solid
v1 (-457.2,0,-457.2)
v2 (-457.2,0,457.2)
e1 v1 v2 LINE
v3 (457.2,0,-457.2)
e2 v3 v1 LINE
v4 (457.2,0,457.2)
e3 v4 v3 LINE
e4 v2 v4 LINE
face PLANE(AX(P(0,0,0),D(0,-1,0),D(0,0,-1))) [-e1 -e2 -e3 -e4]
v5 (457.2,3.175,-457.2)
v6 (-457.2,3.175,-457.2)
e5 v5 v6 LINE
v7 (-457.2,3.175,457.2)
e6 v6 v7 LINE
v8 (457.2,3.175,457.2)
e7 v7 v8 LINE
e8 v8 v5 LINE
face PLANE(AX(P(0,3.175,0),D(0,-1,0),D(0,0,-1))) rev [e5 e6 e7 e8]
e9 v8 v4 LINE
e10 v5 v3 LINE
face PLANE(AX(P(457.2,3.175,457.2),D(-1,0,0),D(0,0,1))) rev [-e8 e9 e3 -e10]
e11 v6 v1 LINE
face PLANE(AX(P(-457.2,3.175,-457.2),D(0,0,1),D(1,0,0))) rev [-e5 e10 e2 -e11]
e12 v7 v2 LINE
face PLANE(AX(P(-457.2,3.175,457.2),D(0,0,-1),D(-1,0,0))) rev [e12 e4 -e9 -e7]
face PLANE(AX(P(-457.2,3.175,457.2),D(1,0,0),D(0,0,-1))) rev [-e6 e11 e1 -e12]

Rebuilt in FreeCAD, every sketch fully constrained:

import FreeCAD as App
import Part
import Sketcher
Q = App.Units.Quantity

doc = App.newDocument("Part")
body = doc.addObject("PartDesign::Body", "Body")

# Sketch on XZ plane
sketch1 = body.newObject("Sketcher::SketchObject", "Sketch")
sketch1.AttachmentSupport = (doc.getObject("XZ_Plane"), [""])
sketch1.MapMode = "FlatFace"
sketch1.addGeometry([
    Part.LineSegment(App.Vector(-457.2, -457.2, 0), App.Vector(-457.2, 457.2, 0)),
    Part.LineSegment(App.Vector(-457.2, 457.2, 0), App.Vector(457.2, 457.2, 0)),
    Part.LineSegment(App.Vector(457.2, 457.2, 0), App.Vector(457.2, -457.2, 0)),
    Part.LineSegment(App.Vector(457.2, -457.2, 0), App.Vector(-457.2, -457.2, 0)),
], False)
sketch1.addConstraint([
    Sketcher.Constraint("Coincident", 0, 2, 1, 1),
    Sketcher.Constraint("Coincident", 1, 2, 2, 1),
    Sketcher.Constraint("Coincident", 2, 2, 3, 1),
    Sketcher.Constraint("Coincident", 3, 2, 0, 1),
    Sketcher.Constraint("Vertical", 0),
    Sketcher.Constraint("Horizontal", 1),
    Sketcher.Constraint("Vertical", 2),
    Sketcher.Constraint("Horizontal", 3),
    Sketcher.Constraint("Symmetric", 0, 2, 2, 2, -1, 1),
    Sketcher.Constraint("Equal", 3, 0),
    Sketcher.Constraint("DistanceX", 1, 1, 1, 2, Q("36 in")),
])
pad1 = body.newObject("PartDesign::Pad", "Pad")
pad1.Profile = sketch1
pad1.Length = Q("0.125 in")
pad1.Reversed = True

doc.recompute()
